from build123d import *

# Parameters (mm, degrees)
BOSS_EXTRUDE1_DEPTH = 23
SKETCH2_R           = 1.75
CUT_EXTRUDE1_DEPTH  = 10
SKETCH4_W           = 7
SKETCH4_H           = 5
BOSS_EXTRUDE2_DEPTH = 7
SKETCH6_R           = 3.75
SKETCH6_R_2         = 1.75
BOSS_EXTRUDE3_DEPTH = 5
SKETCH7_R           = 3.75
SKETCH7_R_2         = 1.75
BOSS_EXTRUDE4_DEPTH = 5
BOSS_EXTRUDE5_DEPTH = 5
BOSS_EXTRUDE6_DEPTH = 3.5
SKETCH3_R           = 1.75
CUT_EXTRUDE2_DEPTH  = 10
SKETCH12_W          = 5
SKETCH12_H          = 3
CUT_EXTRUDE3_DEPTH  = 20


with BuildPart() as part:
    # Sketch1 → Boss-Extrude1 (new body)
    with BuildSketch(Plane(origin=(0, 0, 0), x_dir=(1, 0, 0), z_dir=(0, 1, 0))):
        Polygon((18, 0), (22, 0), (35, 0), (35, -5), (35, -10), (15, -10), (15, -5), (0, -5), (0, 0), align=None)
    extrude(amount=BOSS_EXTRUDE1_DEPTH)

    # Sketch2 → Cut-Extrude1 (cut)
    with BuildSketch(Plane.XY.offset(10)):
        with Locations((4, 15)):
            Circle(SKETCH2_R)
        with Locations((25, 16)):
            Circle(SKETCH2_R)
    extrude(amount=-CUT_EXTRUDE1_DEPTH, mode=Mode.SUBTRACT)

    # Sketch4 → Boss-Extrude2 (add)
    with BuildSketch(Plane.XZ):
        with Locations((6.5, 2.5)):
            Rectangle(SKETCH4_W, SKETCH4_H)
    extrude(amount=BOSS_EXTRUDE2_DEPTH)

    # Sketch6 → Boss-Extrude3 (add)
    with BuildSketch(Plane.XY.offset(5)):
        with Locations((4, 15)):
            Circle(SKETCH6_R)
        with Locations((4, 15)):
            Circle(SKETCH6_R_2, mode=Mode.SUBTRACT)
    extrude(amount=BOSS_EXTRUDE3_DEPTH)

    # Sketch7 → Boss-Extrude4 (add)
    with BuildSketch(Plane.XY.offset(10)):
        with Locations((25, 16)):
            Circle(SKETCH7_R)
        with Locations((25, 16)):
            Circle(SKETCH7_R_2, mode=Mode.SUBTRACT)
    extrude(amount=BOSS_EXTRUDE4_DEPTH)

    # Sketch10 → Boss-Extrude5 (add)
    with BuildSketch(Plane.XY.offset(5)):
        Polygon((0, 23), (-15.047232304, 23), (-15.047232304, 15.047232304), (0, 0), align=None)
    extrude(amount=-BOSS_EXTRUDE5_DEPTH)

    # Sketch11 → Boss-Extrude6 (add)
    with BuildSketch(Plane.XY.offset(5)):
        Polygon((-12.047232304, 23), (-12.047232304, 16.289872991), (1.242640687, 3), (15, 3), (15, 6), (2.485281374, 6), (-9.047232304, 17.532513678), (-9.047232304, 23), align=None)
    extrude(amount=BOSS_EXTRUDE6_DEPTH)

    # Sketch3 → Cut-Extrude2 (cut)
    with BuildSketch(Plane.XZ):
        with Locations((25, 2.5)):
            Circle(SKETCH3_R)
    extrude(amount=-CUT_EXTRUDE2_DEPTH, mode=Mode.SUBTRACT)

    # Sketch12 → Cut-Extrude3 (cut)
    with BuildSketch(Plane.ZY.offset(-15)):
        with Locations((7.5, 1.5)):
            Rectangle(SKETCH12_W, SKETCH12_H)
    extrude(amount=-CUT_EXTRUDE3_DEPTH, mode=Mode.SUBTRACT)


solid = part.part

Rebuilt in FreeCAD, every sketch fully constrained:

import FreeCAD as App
import Part
import Sketcher

V = App.Vector
Q = App.Units.Quantity


def add_polygon(sketch, points):
    """Adds a closed chain of lines whose ends are joined by coincident constraints."""
    first, n = sketch.GeometryCount, len(points)
    for a, b in zip(points, points[1:] + points[:1]):
        sketch.addGeometry(Part.LineSegment(App.Vector(*a, 0), App.Vector(*b, 0)), False)
    for i in range(n):
        sketch.addConstraint(Sketcher.Constraint("Coincident", first + i, 2, first + (i + 1) % n, 1))

doc = App.newDocument("Part")
body = doc.addObject("PartDesign::Body", "Body")

# Sketch on XZ plane
sketch1 = body.newObject("Sketcher::SketchObject", "Sketch")
sketch1.AttachmentSupport = (doc.getObject("XZ_Plane"), [""])
sketch1.MapMode = "FlatFace"
add_polygon(sketch1, [(35, 0), (0, 0), (0, 5), (15, 5), (15, 10), (35, 10)])  # lines 0-5
sketch1.addConstraint(Sketcher.Constraint("Horizontal", 0))
sketch1.addConstraint(Sketcher.Constraint("Vertical", 1))
sketch1.addConstraint(Sketcher.Constraint("Horizontal", 2))
sketch1.addConstraint(Sketcher.Constraint("Vertical", 3))
sketch1.addConstraint(Sketcher.Constraint("Horizontal", 4))
sketch1.addConstraint(Sketcher.Constraint("Vertical", 5))
sketch1.addConstraint(Sketcher.Constraint("Coincident", 0, 2, -1, 1))
sketch1.addConstraint(Sketcher.Constraint("Equal", 1, 3))
sketch1.addConstraint(Sketcher.Constraint("DistanceX", 0, 2, 0, 1, 35.0))
sketch1.addConstraint(Sketcher.Constraint("DistanceX", 2, 1, 2, 2, 15.0))
sketch1.addConstraint(Sketcher.Constraint("DistanceY", 1, 1, 1, 2, 5.0))
pad1 = body.newObject("PartDesign::Pad", "Pad")
pad1.Profile = sketch1
pad1.Length = 23
pad1.Reversed = True

# Sketch on XY plane
sketch2 = body.newObject("Sketcher::SketchObject", "Sketch001")
sketch2.AttachmentSupport = (doc.getObject("XY_Plane"), [""])
sketch2.MapMode = "FlatFace"
sketch2.AttachmentOffset = App.Placement(V(0, 0, 10), App.Rotation())
sketch2.addGeometry(Part.Circle(V(4, 15, 0), V(0, 0, 1), 1.8), False)
sketch2.addGeometry(Part.Circle(V(25, 16, 0), V(0, 0, 1), 1.8), False)
sketch2.addConstraint(Sketcher.Constraint("Equal", 0, 1))
sketch2.addConstraint(Sketcher.Constraint("Diameter", 0, 3.5))
sketch2.addConstraint(Sketcher.Constraint("DistanceX", -1, 1, 0, 3, 4.0))
sketch2.addConstraint(Sketcher.Constraint("DistanceY", -1, 1, 0, 3, 15.0))
sketch2.addConstraint(Sketcher.Constraint("DistanceX", -1, 1, 1, 3, 25.0))
sketch2.addConstraint(Sketcher.Constraint("DistanceY", -1, 1, 1, 3, 16.0))
pocket1 = body.newObject("PartDesign::Pocket", "Pocket")
pocket1.Profile = sketch2
pocket1.Length = 10

# Sketch on XZ plane
sketch3 = body.newObject("Sketcher::SketchObject", "Sketch002")
sketch3.AttachmentSupport = (doc.getObject("XZ_Plane"), [""])
sketch3.MapMode = "FlatFace"
add_polygon(sketch3, [(3, 5), (3, 0), (10, 0), (10, 5)])  # lines 0-3
sketch3.addConstraint(Sketcher.Constraint("Vertical", 0))
sketch3.addConstraint(Sketcher.Constraint("Horizontal", 1))
sketch3.addConstraint(Sketcher.Constraint("Vertical", 2))
sketch3.addConstraint(Sketcher.Constraint("Horizontal", 3))
sketch3.addConstraint(Sketcher.Constraint("PointOnObject", 0, 2, -1))
sketch3.addConstraint(Sketcher.Constraint("DistanceX", 1, 1, 1, 2, 7.0))
sketch3.addConstraint(Sketcher.Constraint("DistanceY", 0, 2, 0, 1, 5.0))
sketch3.addConstraint(Sketcher.Constraint("DistanceX", -1, 1, 0, 2, 3.0))
pad2 = body.newObject("PartDesign::Pad", "Pad001")
pad2.Profile = sketch3
pad2.Length = 7

# Sketch on XY plane
sketch4 = body.newObject("Sketcher::SketchObject", "Sketch003")
sketch4.AttachmentSupport = (doc.getObject("XY_Plane"), [""])
sketch4.MapMode = "FlatFace"
sketch4.AttachmentOffset = App.Placement(V(0, 0, 5), App.Rotation())
sketch4.addGeometry(Part.Circle(V(4, 15, 0), V(0, 0, 1), 3.8), False)
sketch4.addGeometry(Part.Circle(V(4, 15, 0), V(0, 0, 1), 1.8), False)
sketch4.addConstraint(Sketcher.Constraint("Coincident", 1, 3, 0, 3))
sketch4.addConstraint(Sketcher.Constraint("Diameter", 0, 7.5))
sketch4.addConstraint(Sketcher.Constraint("Diameter", 1, 3.5))
sketch4.addConstraint(Sketcher.Constraint("DistanceX", -1, 1, 0, 3, 4.0))
sketch4.addConstraint(Sketcher.Constraint("DistanceY", -1, 1, 0, 3, 15.0))
pad3 = body.newObject("PartDesign::Pad", "Pad002")
pad3.Profile = sketch4
pad3.Length = 5

# Sketch on XY plane
sketch5 = body.newObject("Sketcher::SketchObject", "Sketch004")
sketch5.AttachmentSupport = (doc.getObject("XY_Plane"), [""])
sketch5.MapMode = "FlatFace"
sketch5.AttachmentOffset = App.Placement(V(0, 0, 10), App.Rotation())
sketch5.addGeometry(Part.Circle(V(25, 16, 0), V(0, 0, 1), 3.8), False)
sketch5.addGeometry(Part.Circle(V(25, 16, 0), V(0, 0, 1), 1.8), False)
sketch5.addConstraint(Sketcher.Constraint("Coincident", 1, 3, 0, 3))
sketch5.addConstraint(Sketcher.Constraint("Diameter", 0, 7.5))
sketch5.addConstraint(Sketcher.Constraint("Diameter", 1, 3.5))
sketch5.addConstraint(Sketcher.Constraint("DistanceX", -1, 1, 0, 3, 25.0))
sketch5.addConstraint(Sketcher.Constraint("DistanceY", -1, 1, 0, 3, 16.0))
pad4 = body.newObject("PartDesign::Pad", "Pad003")
pad4.Profile = sketch5
pad4.Length = 5

# Sketch on XY plane
sketch6 = body.newObject("Sketcher::SketchObject", "Sketch005")
sketch6.AttachmentSupport = (doc.getObject("XY_Plane"), [""])
sketch6.MapMode = "FlatFace"
sketch6.AttachmentOffset = App.Placement(V(0, 0, 5), App.Rotation())
add_polygon(sketch6, [(0, 23), (-15, 23), (-15, 15), (0, 0)])  # lines 0-3
sketch6.addConstraint(Sketcher.Constraint("Horizontal", 0))
sketch6.addConstraint(Sketcher.Constraint("Vertical", 1))
sketch6.addConstraint(Sketcher.Constraint("Vertical", 3))
sketch6.addConstraint(Sketcher.Constraint("Coincident", 2, 2, -1, 1))
sketch6.addConstraint(Sketcher.Constraint("DistanceY", 3, 1, 3, 2, 23.0))
sketch6.addConstraint(Sketcher.Constraint("Angle", 2, Q("-45 deg")))
sketch6.addConstraint(Sketcher.Constraint("Distance", 2, 21.28))
pad5 = body.newObject("PartDesign::Pad", "Pad004")
pad5.Profile = sketch6
pad5.Length = 5
pad5.Reversed = True

# Sketch on XY plane
sketch7 = body.newObject("Sketcher::SketchObject", "Sketch006")
sketch7.AttachmentSupport = (doc.getObject("XY_Plane"), [""])
sketch7.MapMode = "FlatFace"
sketch7.AttachmentOffset = App.Placement(V(0, 0, 5), App.Rotation())
add_polygon(sketch7, [(-12, 23), (-12, 16.3), (1.2, 3), (15, 3), (15, 6), (2.5, 6), (-9, 17.5), (-9, 23)])  # lines 0-7
sketch7.addConstraint(Sketcher.Constraint("Vertical", 0))
sketch7.addConstraint(Sketcher.Constraint("Horizontal", 2))
sketch7.addConstraint(Sketcher.Constraint("Vertical", 3))
sketch7.addConstraint(Sketcher.Constraint("Horizontal", 4))
sketch7.addConstraint(Sketcher.Constraint("Vertical", 6))
sketch7.addConstraint(Sketcher.Constraint("Horizontal", 7))
sketch7.addConstraint(Sketcher.Constraint("Parallel", 1, 5))
sketch7.addConstraint(Sketcher.Constraint("Equal", 7, 3))
sketch7.addConstraint(Sketcher.Constraint("DistanceX", 7, 2, 7, 1, 3.0))
sketch7.addConstraint(Sketcher.Constraint("Angle", 1, Q("-45 deg")))
sketch7.addConstraint(Sketcher.Constraint("DistanceY", -1, 1, 1, 2, 3.0))
sketch7.addConstraint(Sketcher.Constraint("DistanceX", -1, 1, 2, 2, 15.0))
sketch7.addConstraint(Sketcher.Constraint("DistanceY", -1, 1, 6, 2, 23.0))
sketch7.addConstraint(Sketcher.Constraint("DistanceX", 2, 1, 2, 2, 13.757359))
sketch7.addConstraint(Sketcher.Constraint("DistanceX", 4, 2, 4, 1, 12.514719))
sketch7.addConstraint(Sketcher.Constraint("Distance", 1, 18.794719))
pad6 = body.newObject("PartDesign::Pad", "Pad005")
pad6.Profile = sketch7
pad6.Length = 3.5

# Sketch on XZ plane
sketch8 = body.newObject("Sketcher::SketchObject", "Sketch007")
sketch8.AttachmentSupport = (doc.getObject("XZ_Plane"), [""])
sketch8.MapMode = "FlatFace"
sketch8.addGeometry(Part.Circle(V(25, 2.5, 0), V(0, 0, 1), 1.8), False)
sketch8.addConstraint(Sketcher.Constraint("Diameter", 0, 3.5))
sketch8.addConstraint(Sketcher.Constraint("DistanceX", -1, 1, 0, 3, 25.0))
sketch8.addConstraint(Sketcher.Constraint("DistanceY", -1, 1, 0, 3, 2.5))
pocket2 = body.newObject("PartDesign::Pocket", "Pocket001")
pocket2.Profile = sketch8
pocket2.Length = 10

# Sketch on YZ plane
sketch9 = body.newObject("Sketcher::SketchObject", "Sketch008")
sketch9.AttachmentSupport = (doc.getObject("YZ_Plane"), [""])
sketch9.MapMode = "FlatFace"
sketch9.AttachmentOffset = App.Placement(V(0, 0, 15), App.Rotation())
add_polygon(sketch9, [(3, 5), (0, 5), (0, 10), (3, 10)])  # lines 0-3
sketch9.addConstraint(Sketcher.Constraint("Horizontal", 0))
sketch9.addConstraint(Sketcher.Constraint("Vertical", 1))
sketch9.addConstraint(Sketcher.Constraint("Horizontal", 2))
sketch9.addConstraint(Sketcher.Constraint("Vertical", 3))
sketch9.addConstraint(Sketcher.Constraint("PointOnObject", 0, 2, -2))
sketch9.addConstraint(Sketcher.Constraint("DistanceX", 0, 2, 0, 1, 3.0))
sketch9.addConstraint(Sketcher.Constraint("DistanceY", 1, 1, 1, 2, 5.0))
sketch9.addConstraint(Sketcher.Constraint("DistanceY", -1, 1, 0, 2, 5.0))
pocket3 = body.newObject("PartDesign::Pocket", "Pocket002")
pocket3.Profile = sketch9
pocket3.Length = 20
pocket3.Reversed = True

doc.recompute()
